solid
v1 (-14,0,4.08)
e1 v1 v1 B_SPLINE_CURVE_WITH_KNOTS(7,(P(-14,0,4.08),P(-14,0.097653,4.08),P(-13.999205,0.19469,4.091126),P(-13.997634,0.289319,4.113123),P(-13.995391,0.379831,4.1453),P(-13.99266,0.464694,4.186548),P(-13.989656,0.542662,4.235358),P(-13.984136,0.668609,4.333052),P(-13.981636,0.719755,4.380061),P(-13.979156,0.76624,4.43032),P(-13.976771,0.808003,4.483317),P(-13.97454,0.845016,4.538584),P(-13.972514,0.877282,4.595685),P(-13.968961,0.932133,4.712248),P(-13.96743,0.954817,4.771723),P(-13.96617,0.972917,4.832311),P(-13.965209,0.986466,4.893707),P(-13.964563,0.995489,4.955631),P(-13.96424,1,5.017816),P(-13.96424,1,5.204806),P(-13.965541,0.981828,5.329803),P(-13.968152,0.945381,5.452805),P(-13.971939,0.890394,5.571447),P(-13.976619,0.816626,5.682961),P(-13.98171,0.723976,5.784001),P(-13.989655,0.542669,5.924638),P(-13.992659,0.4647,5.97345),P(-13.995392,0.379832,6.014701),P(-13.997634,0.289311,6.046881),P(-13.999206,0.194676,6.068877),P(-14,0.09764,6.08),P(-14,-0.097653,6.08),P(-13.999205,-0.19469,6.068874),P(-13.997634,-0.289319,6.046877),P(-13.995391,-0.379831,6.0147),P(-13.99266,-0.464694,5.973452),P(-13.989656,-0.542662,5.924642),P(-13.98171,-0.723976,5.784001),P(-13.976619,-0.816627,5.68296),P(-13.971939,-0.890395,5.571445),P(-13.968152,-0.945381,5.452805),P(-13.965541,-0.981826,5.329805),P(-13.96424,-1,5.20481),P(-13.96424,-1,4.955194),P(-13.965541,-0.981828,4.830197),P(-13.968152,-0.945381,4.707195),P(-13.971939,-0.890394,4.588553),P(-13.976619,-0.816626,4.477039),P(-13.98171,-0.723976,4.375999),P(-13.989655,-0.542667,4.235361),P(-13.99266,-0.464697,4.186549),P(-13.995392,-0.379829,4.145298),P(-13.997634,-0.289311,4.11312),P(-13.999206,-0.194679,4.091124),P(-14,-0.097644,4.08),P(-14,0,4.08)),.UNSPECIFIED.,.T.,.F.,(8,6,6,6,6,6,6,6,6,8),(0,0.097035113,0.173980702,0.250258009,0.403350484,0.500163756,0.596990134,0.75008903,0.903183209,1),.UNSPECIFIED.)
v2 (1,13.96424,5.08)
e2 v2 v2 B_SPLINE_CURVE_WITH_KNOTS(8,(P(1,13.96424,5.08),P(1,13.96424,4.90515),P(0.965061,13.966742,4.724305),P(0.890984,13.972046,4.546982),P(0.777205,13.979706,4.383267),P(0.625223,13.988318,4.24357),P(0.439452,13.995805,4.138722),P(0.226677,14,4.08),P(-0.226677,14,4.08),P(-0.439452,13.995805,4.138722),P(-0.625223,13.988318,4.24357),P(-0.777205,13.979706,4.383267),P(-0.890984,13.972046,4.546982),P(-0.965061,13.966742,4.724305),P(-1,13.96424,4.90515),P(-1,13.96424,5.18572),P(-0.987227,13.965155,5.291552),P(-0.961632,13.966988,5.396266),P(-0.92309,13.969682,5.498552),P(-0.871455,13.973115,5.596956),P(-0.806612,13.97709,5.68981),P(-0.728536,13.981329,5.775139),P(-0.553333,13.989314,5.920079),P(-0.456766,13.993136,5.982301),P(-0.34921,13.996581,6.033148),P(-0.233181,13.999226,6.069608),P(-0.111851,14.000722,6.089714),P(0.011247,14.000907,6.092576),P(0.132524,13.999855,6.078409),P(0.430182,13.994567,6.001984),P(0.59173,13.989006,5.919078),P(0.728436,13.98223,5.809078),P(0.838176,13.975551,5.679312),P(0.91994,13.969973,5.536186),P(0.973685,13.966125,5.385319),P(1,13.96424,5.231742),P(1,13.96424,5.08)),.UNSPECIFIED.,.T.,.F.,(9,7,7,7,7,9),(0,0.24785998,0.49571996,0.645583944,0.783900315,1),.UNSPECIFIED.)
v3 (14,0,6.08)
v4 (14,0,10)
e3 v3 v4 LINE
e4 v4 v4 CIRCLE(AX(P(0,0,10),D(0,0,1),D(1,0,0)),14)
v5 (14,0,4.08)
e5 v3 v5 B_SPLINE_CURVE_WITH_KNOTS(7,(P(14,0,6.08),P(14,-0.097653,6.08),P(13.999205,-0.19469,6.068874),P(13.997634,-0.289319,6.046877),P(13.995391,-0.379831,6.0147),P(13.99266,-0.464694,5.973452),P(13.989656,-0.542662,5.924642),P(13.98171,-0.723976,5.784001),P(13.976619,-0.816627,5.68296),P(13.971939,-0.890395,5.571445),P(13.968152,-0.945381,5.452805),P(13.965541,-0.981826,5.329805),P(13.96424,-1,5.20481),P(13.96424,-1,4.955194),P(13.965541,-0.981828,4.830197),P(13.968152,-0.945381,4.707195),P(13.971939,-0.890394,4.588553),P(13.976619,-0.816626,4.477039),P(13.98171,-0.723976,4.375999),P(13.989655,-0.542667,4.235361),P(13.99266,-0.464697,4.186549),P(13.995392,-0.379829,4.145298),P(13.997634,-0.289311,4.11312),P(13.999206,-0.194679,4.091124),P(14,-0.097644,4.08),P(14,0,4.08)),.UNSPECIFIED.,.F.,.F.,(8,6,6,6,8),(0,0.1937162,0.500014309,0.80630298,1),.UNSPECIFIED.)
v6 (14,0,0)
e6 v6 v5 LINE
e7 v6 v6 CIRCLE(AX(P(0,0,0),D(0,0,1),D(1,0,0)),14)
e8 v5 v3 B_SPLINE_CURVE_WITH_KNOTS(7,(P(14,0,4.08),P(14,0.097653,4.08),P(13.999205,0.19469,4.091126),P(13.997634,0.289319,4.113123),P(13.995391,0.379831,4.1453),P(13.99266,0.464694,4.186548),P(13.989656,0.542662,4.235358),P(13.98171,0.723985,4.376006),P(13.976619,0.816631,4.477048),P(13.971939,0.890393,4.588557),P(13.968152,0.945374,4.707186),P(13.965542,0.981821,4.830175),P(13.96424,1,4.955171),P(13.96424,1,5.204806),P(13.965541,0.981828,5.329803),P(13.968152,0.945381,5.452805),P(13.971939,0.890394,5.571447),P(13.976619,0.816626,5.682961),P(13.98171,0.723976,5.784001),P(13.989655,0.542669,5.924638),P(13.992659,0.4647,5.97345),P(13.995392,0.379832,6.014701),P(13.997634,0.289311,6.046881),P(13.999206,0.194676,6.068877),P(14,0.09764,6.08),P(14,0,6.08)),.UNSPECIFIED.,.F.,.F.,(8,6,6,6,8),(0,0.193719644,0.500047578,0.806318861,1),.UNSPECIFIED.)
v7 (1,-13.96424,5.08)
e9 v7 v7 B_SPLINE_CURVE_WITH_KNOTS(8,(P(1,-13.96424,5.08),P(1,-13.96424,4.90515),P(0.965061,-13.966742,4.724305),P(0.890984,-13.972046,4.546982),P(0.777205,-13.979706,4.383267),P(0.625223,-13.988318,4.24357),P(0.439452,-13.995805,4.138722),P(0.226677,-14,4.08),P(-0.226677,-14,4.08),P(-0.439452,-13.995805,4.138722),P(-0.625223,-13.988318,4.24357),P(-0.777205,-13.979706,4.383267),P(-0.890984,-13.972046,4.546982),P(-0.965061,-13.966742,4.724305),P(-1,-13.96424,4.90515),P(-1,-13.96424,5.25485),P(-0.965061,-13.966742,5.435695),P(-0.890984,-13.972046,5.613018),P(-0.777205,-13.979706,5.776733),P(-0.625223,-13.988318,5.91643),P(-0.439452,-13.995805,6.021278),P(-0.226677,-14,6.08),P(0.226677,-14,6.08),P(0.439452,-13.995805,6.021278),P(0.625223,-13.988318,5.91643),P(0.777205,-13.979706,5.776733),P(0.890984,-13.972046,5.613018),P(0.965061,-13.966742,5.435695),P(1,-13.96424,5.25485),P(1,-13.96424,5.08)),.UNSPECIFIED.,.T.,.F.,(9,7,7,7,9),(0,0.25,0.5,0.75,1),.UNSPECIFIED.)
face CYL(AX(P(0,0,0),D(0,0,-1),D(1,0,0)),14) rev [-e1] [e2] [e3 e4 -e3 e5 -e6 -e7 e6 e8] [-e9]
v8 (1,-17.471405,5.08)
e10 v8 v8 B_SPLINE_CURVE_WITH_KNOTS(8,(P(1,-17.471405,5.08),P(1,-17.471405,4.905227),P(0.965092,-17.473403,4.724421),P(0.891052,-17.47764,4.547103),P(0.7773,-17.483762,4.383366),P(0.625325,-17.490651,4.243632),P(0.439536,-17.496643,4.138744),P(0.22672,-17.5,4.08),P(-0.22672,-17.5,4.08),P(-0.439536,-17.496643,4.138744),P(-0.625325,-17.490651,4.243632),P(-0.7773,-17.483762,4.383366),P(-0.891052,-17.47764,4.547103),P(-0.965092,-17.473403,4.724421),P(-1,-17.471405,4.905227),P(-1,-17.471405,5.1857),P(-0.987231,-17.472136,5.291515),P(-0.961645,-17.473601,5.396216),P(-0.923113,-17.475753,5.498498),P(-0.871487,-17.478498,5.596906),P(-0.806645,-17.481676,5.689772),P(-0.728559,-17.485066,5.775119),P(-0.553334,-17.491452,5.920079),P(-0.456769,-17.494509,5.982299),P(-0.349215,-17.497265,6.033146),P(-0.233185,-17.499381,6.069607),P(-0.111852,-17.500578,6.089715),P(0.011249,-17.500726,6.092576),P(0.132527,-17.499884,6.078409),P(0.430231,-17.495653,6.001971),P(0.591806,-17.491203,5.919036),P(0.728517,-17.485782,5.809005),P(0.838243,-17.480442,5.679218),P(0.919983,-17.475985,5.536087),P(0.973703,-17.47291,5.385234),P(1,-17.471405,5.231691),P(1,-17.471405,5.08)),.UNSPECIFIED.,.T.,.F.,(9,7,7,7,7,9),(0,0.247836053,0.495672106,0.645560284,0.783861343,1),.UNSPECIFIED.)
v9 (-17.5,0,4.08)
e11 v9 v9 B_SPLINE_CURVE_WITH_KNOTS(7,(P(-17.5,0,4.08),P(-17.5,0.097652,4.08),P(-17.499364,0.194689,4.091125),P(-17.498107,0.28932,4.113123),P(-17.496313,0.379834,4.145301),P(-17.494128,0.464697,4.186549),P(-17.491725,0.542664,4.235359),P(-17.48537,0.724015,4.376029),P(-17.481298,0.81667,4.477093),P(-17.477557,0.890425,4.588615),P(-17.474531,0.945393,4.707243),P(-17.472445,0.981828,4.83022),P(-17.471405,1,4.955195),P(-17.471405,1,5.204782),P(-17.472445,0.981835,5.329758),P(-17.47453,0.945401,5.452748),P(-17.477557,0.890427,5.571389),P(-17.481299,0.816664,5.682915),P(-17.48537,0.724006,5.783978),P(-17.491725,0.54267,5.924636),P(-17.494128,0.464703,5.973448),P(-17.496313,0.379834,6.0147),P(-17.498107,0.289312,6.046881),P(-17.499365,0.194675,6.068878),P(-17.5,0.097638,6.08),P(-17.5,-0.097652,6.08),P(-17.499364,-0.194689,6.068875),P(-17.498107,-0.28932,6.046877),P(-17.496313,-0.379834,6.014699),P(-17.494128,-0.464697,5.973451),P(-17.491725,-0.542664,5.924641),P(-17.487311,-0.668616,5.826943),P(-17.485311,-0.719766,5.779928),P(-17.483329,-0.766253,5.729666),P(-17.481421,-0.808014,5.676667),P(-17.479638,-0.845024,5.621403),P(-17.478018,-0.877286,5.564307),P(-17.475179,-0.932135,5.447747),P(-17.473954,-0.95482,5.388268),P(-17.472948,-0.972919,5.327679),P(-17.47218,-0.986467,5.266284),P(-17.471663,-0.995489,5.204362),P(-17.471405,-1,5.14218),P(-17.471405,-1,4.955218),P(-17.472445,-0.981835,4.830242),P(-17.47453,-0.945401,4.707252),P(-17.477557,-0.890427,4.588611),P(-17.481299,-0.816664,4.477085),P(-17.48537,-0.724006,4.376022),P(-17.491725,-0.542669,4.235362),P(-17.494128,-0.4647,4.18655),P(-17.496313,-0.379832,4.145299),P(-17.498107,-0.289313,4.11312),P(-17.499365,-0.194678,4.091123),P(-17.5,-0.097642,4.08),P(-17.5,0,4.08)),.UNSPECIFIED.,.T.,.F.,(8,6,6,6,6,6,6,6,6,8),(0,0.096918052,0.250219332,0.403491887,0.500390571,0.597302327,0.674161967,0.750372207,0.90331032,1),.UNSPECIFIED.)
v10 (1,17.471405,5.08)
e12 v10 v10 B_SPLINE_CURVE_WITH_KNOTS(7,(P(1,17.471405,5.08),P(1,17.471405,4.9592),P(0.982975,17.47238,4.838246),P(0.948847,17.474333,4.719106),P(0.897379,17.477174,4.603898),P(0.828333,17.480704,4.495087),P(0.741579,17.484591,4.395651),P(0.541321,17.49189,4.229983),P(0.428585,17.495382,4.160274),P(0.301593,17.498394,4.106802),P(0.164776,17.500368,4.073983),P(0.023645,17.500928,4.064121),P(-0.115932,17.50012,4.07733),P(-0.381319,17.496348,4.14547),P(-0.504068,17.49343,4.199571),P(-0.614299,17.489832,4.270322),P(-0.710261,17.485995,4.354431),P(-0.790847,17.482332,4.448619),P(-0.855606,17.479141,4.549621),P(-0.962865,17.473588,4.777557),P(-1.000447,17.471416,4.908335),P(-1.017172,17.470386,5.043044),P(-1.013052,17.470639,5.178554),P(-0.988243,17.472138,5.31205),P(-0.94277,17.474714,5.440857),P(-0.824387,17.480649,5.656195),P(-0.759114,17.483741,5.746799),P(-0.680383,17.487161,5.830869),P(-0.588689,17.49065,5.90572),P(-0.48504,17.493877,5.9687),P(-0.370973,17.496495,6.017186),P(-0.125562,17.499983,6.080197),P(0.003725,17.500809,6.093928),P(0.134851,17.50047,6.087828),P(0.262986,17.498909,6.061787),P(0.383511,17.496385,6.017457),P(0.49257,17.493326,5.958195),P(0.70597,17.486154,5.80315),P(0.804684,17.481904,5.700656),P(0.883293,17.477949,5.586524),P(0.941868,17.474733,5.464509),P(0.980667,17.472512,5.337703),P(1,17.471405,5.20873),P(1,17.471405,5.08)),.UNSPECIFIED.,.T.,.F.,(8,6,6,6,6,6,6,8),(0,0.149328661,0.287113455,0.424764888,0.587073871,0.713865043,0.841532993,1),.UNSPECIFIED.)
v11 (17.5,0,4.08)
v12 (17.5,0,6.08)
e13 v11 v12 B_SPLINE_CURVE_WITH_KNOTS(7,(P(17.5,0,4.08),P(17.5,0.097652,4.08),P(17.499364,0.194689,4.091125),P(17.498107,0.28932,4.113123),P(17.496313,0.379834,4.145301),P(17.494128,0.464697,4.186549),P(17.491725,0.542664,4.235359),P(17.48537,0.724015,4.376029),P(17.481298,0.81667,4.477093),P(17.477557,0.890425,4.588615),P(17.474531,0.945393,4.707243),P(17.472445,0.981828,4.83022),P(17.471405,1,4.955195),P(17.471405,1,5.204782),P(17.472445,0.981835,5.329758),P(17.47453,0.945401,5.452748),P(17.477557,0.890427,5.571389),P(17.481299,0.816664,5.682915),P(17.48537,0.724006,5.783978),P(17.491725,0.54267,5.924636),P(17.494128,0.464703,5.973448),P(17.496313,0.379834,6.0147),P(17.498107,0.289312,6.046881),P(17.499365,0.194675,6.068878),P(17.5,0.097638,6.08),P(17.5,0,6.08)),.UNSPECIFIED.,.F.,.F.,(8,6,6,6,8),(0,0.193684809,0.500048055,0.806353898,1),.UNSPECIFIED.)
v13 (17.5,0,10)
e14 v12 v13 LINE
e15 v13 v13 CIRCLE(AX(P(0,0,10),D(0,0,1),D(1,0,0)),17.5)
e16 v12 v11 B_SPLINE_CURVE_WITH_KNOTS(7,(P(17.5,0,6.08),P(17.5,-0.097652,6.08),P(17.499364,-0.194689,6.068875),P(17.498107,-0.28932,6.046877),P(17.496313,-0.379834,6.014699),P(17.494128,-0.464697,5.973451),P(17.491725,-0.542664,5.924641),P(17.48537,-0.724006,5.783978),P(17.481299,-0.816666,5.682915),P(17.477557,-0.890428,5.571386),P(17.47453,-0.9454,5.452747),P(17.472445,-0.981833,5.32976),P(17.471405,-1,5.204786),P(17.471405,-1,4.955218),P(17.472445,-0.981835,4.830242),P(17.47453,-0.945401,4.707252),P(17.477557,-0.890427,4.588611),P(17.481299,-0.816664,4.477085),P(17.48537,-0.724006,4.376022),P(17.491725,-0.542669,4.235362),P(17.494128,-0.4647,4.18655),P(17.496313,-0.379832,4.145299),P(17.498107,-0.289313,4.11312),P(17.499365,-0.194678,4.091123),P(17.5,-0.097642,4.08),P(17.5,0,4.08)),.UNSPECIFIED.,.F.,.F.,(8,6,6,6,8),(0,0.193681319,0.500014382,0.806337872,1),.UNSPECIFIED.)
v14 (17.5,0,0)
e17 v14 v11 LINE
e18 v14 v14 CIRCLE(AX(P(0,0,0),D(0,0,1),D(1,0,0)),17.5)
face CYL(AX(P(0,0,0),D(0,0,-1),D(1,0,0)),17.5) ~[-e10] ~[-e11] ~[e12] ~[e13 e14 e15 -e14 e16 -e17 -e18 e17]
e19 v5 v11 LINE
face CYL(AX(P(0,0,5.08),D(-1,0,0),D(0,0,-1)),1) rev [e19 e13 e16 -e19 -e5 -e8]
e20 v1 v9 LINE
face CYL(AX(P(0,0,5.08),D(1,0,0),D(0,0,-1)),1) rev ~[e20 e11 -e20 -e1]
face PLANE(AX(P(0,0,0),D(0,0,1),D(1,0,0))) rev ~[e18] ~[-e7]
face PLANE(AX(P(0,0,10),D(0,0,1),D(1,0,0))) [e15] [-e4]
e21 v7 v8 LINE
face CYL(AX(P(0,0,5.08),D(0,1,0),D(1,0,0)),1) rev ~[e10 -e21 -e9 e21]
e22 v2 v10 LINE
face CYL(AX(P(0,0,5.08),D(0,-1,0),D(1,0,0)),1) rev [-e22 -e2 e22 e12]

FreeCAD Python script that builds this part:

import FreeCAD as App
import Part
import Sketcher
Q = App.Units.Quantity

doc = App.newDocument("Part")
body = doc.addObject("PartDesign::Body", "Body")

sketch1 = doc.addObject("Sketcher::SketchObject", "Sketch")
body.addObject(sketch1)
sketch1.AttachmentSupport = (doc.XY_Plane, [""])
sketch1.MapMode = "FlatFace"
sketch1.addGeometry([
    Part.Circle(App.Vector(0, 0, 0), App.Vector(0, 0, 1), 18),
    Part.Circle(App.Vector(0, 0, 0), App.Vector(0, 0, 1), 14),
], False)
sketch1.addConstraint([
    Sketcher.Constraint("Coincident", 0, 3, -1, 1),
    Sketcher.Constraint("Coincident", 1, 3, -1, 1),
    Sketcher.Constraint("Diameter", 0, Q("35 mm")),
    Sketcher.Constraint("Diameter", 1, Q("28 mm")),
])
pad1 = doc.addObject("PartDesign::Pad", "Pad")
body.addObject(pad1)
pad1.Profile = sketch1
pad1.Length = 10

sketch2 = doc.addObject("Sketcher::SketchObject", "Sketch001")
body.addObject(sketch2)
sketch2.AttachmentSupport = (doc.XZ_Plane, [""])
sketch2.MapMode = "FlatFace"
sketch2.addGeometry(Part.Circle(App.Vector(0, 5.1, 0), App.Vector(0, 0, 1), 1), False)
sketch2.addConstraint([
    Sketcher.Constraint("PointOnObject", 0, 3, -2),
    Sketcher.Constraint("Diameter", 0, Q("2 mm")),
    Sketcher.Constraint("DistanceY", -1, 1, 0, 3, Q("5.08 mm")),
])
pocket1 = doc.addObject("PartDesign::Pocket", "Pocket")
body.addObject(pocket1)
pocket1.Profile = sketch2
pocket1.Type = "ThroughAll"
pocket1.Midplane = True

sketch3 = doc.addObject("Sketcher::SketchObject", "Sketch002")
body.addObject(sketch3)
sketch3.AttachmentSupport = (doc.YZ_Plane, [""])
sketch3.MapMode = "FlatFace"
sketch3.addGeometry(Part.Circle(App.Vector(0, 5.1, 0), App.Vector(0, 0, 1), 1), False)
sketch3.addConstraint([
    Sketcher.Constraint("PointOnObject", 0, 3, -2),
    Sketcher.Constraint("Diameter", 0, Q("2 mm")),
    Sketcher.Constraint("DistanceY", -1, 1, 0, 3, Q("5.08 mm")),
])
pocket2 = doc.addObject("PartDesign::Pocket", "Pocket001")
body.addObject(pocket2)
pocket2.Profile = sketch3
pocket2.Type = "ThroughAll"
pocket2.Midplane = True

doc.recompute()
